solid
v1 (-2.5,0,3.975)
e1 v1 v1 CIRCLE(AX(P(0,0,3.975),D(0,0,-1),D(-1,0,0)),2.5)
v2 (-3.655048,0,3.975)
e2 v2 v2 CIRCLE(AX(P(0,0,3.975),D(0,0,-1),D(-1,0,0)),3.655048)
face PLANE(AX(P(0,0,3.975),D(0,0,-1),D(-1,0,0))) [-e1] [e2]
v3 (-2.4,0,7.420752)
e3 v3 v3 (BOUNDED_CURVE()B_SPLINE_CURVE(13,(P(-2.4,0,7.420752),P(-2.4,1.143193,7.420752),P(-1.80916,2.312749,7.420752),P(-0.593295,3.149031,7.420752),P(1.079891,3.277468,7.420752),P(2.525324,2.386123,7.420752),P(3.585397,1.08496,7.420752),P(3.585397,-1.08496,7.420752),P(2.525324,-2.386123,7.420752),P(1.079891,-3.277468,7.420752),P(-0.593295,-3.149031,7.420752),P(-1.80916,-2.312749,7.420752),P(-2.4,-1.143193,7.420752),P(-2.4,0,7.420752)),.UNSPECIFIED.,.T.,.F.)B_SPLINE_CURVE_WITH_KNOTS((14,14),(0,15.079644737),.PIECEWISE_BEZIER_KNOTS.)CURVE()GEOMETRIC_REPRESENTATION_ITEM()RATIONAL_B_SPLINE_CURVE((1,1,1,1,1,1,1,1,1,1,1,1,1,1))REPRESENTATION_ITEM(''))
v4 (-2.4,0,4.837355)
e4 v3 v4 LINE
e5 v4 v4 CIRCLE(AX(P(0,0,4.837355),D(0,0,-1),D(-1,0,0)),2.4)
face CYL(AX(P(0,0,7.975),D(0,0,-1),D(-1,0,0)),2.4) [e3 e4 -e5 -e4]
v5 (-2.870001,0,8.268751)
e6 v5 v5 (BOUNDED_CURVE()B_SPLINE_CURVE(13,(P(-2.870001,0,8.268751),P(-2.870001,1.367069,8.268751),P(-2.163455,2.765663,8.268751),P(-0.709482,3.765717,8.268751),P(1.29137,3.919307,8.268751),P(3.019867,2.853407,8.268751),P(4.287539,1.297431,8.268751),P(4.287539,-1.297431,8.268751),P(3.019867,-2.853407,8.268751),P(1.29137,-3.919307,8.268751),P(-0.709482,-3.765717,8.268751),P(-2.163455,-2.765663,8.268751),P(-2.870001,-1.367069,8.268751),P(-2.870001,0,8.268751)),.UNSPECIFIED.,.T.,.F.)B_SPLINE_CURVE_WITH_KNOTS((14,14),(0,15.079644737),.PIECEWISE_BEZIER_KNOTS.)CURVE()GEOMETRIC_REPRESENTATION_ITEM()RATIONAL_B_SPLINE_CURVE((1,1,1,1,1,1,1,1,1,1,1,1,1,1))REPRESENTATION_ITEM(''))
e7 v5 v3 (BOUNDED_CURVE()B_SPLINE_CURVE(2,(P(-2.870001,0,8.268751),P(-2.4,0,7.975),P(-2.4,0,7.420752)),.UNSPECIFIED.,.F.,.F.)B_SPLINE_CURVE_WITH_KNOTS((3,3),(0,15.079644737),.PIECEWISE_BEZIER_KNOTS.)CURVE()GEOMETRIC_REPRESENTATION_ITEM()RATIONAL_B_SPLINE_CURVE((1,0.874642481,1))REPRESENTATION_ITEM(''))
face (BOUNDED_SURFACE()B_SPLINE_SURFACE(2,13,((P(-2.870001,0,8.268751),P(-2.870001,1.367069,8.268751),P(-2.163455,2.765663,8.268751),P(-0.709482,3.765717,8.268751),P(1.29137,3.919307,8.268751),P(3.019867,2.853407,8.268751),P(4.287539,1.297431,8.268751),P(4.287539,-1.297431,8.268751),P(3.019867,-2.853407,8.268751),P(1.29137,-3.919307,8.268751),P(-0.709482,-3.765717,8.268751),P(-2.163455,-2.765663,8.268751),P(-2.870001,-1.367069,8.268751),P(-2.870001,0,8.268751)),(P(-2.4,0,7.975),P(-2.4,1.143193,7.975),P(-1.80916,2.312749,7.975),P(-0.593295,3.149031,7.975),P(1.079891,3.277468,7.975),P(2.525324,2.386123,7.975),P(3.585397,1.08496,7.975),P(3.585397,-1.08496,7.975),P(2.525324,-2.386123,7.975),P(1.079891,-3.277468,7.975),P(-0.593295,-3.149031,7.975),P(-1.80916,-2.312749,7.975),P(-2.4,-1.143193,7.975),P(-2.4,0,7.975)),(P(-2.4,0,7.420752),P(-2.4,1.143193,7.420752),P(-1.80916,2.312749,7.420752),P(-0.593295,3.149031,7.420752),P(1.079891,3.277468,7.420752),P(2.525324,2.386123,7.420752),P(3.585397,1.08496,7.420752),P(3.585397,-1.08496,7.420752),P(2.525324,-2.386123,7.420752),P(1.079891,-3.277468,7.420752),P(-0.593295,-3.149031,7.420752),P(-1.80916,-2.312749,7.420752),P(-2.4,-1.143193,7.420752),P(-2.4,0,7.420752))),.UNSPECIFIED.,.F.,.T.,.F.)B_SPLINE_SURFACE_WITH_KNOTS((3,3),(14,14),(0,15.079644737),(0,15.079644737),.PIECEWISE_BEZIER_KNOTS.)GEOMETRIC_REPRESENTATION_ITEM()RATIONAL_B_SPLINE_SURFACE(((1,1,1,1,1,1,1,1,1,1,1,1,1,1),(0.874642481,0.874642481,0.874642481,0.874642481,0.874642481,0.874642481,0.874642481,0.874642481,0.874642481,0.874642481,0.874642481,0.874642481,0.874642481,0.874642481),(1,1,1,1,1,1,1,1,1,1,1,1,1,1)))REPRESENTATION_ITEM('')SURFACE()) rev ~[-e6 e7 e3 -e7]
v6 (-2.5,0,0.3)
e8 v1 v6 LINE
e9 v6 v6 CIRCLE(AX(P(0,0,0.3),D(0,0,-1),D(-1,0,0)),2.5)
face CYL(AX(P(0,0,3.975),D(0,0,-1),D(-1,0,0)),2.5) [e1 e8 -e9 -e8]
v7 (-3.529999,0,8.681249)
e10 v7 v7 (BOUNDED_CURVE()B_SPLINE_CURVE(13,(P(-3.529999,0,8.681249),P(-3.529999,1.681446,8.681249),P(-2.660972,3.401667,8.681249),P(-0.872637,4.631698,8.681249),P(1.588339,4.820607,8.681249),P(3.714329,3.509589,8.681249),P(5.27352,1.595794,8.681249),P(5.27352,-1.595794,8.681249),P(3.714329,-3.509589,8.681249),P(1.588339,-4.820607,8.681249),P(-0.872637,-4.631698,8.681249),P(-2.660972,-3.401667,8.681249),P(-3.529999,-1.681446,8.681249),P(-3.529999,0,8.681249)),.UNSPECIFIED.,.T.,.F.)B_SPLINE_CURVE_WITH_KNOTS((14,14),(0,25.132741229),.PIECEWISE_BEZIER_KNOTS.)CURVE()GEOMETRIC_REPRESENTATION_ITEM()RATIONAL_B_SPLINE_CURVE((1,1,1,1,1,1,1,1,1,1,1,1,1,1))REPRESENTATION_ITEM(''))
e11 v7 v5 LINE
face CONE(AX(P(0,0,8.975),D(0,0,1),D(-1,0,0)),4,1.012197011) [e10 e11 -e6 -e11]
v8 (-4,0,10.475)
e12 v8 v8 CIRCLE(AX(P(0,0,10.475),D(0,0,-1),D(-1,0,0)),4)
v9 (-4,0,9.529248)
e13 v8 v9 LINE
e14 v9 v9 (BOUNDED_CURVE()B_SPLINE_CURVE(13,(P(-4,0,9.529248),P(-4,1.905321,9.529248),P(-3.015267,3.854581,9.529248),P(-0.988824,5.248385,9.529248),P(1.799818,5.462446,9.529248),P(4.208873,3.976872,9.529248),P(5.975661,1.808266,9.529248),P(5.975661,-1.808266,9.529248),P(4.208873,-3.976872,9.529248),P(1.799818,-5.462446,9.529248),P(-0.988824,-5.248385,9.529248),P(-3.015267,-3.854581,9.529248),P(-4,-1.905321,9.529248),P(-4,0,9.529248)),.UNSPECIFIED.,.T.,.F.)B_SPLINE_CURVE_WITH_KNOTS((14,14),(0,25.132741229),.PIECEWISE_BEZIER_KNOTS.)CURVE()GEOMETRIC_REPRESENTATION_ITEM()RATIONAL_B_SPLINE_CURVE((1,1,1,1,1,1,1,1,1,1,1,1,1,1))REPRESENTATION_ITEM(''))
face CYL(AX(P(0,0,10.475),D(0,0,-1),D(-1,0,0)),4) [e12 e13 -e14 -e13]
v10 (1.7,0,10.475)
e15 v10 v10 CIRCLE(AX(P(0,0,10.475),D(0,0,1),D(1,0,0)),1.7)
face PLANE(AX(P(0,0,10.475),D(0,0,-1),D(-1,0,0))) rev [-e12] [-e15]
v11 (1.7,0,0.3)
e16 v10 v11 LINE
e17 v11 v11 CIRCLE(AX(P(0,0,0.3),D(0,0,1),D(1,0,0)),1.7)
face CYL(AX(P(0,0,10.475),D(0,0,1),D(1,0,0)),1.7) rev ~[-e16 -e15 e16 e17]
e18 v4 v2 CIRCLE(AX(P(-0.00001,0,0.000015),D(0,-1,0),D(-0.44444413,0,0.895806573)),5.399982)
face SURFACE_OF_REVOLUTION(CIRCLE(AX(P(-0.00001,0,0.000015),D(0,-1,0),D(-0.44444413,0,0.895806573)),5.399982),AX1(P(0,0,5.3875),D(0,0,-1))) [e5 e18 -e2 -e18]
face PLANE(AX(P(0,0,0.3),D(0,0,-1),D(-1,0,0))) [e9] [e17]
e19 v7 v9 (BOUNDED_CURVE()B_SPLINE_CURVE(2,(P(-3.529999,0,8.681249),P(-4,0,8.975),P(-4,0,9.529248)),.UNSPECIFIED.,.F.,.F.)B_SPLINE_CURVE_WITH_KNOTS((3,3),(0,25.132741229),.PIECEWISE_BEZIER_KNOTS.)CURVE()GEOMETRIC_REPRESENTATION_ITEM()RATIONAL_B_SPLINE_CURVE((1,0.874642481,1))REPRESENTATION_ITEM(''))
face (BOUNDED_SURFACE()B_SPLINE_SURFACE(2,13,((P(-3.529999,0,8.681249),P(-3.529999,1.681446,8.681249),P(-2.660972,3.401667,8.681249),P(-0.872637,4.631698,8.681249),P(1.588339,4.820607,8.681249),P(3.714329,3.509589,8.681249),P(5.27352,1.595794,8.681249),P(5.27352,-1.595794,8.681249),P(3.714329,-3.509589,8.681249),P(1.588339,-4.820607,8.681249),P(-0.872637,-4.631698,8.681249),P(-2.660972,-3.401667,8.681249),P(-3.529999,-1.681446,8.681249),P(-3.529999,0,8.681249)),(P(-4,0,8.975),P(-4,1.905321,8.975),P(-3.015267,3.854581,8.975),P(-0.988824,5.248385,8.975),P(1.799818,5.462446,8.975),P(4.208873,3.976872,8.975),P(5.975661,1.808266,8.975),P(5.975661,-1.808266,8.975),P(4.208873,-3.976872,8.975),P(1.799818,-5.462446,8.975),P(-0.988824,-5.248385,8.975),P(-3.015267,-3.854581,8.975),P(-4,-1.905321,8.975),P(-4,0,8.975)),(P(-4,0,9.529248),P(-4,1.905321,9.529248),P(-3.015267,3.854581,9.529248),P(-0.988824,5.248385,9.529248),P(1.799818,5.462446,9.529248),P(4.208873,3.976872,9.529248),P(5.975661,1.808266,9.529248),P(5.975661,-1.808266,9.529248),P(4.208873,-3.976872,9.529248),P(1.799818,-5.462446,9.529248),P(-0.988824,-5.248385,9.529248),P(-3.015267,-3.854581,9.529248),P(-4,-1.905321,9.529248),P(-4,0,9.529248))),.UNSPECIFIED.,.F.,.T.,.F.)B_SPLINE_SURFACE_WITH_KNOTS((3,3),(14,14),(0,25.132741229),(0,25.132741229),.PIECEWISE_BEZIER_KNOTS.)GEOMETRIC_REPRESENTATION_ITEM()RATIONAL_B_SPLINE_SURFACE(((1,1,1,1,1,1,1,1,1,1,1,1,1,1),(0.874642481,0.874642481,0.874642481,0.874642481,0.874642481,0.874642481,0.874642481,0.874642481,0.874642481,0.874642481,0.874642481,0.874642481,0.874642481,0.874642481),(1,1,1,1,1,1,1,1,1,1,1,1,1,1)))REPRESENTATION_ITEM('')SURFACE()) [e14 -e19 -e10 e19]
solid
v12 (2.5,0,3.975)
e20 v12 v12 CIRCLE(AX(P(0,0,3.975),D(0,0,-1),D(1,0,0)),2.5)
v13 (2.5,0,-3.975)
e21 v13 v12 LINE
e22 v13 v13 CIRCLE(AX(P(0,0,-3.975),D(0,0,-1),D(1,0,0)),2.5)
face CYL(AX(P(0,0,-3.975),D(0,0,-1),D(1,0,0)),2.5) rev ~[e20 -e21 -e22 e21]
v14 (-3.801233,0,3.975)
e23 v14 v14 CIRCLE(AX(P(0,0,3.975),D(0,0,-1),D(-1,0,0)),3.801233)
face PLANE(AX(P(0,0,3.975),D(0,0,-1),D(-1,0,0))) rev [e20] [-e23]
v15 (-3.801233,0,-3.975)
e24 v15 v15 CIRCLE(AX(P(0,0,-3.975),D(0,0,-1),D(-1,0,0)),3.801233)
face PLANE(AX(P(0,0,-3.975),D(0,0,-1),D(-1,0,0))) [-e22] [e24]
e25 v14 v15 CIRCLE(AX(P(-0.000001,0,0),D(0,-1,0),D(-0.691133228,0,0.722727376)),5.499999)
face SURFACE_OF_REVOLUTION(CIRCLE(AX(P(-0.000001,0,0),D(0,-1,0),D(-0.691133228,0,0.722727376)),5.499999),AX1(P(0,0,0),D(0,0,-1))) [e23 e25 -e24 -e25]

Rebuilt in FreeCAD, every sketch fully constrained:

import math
import FreeCAD as App
import Part
import Sketcher


def edges_at(feature, points):
    """Names of the edges that pass closest to the given points."""
    edges = feature.Shape.Edges
    near = lambda p: min(range(len(edges)), key=lambda i: edges[i].distToShape(Part.Vertex(*p))[0])
    return sorted({f"Edge{near(p) + 1}" for p in points})

doc = App.newDocument("Part")
body = doc.addObject("PartDesign::Body", "Body")

sketch1 = body.newObject("Sketcher::SketchObject", "Sketch")
sketch1.AttachmentSupport = (doc.getObject("XZ_Plane"), [""])
sketch1.MapMode = "FlatFace"
sketch1.addGeometry([
    Part.LineSegment(App.Vector(0, 4, 0), App.Vector(-3.8, 4, 0)),
    Part.ArcOfCircle(Part.Circle(App.Vector(0, 0, 0), App.Vector(0, 0, 1), 5.5), math.radians(134), math.radians(226)),
    Part.LineSegment(App.Vector(-3.8, -4, 0), App.Vector(0, -4, 0)),
    Part.LineSegment(App.Vector(0, -4, 0), App.Vector(0, 4, 0)),
], False)
sketch1.addConstraint([
    Sketcher.Constraint("Coincident", 0, 2, 1, 1),
    Sketcher.Constraint("Coincident", 1, 2, 2, 1),
    Sketcher.Constraint("Coincident", 2, 2, 3, 1),
    Sketcher.Constraint("Coincident", 3, 2, 0, 1),
    Sketcher.Constraint("Horizontal", 0),
    Sketcher.Constraint("Horizontal", 2),
    Sketcher.Constraint("Vertical", 3),
    Sketcher.Constraint("Coincident", 1, 3, -1, 1),
    Sketcher.Constraint("Symmetric", 2, 2, 3, 2, -1, 1),
    Sketcher.Constraint("Radius", 1, 5.499999),
    Sketcher.Constraint("DistanceY", 3, 1, 3, 2, 7.95),
])
revolution = body.newObject("PartDesign::Revolution", "Revolution")
revolution.Profile = sketch1
revolution.ReferenceAxis = (sketch1, ["V_Axis"])
revolution.Angle = 360

sketch2 = body.newObject("Sketcher::SketchObject", "Sketch001")
sketch2.AttachmentSupport = (doc.getObject("XY_Plane"), [""])
sketch2.MapMode = "FlatFace"
sketch2.AttachmentOffset = App.Placement(App.Vector(0, 0, -3.975), App.Rotation())
sketch2.addGeometry(Part.Circle(App.Vector(0, 0, 0), App.Vector(0, 0, 1), 2.5), False)
sketch2.addConstraint([
    Sketcher.Constraint("Coincident", 0, 3, -1, 1),
    Sketcher.Constraint("Diameter", 0, 5.0),
])
pocket1 = body.newObject("PartDesign::Pocket", "Pocket")
pocket1.Profile = sketch2
pocket1.Type = "ThroughAll"
pocket1.Reversed = True
body2 = doc.addObject("PartDesign::Body", "Body001")

sketch3 = body2.newObject("Sketcher::SketchObject", "Sketch002")
sketch3.AttachmentSupport = (doc.getObject("XZ_Plane001"), [""])
sketch3.MapMode = "FlatFace"
sketch3.addGeometry([
    Part.LineSegment(App.Vector(0, 0.3, 0), App.Vector(0, 10.5, 0)),
    Part.LineSegment(App.Vector(0, 10.5, 0), App.Vector(-4, 10.5, 0)),
    Part.LineSegment(App.Vector(-4, 10.5, 0), App.Vector(-4, 9, 0)),
    Part.LineSegment(App.Vector(-4, 9, 0), App.Vector(-2.4, 8, 0)),
    Part.LineSegment(App.Vector(-2.4, 8, 0), App.Vector(-2.4, 4.8, 0)),
    Part.ArcOfCircle(Part.Circle(App.Vector(0, 0, 0), App.Vector(0, 0, 1), 5.4), math.radians(116.39), math.radians(132.6)),
    Part.LineSegment(App.Vector(-3.7, 4, 0), App.Vector(-2.5, 4, 0)),
    Part.LineSegment(App.Vector(-2.5, 4, 0), App.Vector(-2.5, 0.3, 0)),
    Part.LineSegment(App.Vector(-2.5, 0.3, 0), App.Vector(0, 0.3, 0)),
], False)
sketch3.addConstraint([
    Sketcher.Constraint("Coincident", 0, 2, 1, 1),
    Sketcher.Constraint("Coincident", 1, 2, 2, 1),
    Sketcher.Constraint("Coincident", 2, 2, 3, 1),
    Sketcher.Constraint("Coincident", 3, 2, 4, 1),
    Sketcher.Constraint("Coincident", 4, 2, 5, 1),
    Sketcher.Constraint("Coincident", 5, 2, 6, 1),
    Sketcher.Constraint("Coincident", 6, 2, 7, 1),
    Sketcher.Constraint("Coincident", 7, 2, 8, 1),
    Sketcher.Constraint("Coincident", 8, 2, 0, 1),
    Sketcher.Constraint("Vertical", 0),
    Sketcher.Constraint("Horizontal", 1),
    Sketcher.Constraint("Vertical", 2),
    Sketcher.Constraint("Vertical", 4),
    Sketcher.Constraint("Horizontal", 6),
    Sketcher.Constraint("Vertical", 7),
    Sketcher.Constraint("Horizontal", 8),
    Sketcher.Constraint("PointOnObject", 0, 2, -2),
    Sketcher.Constraint("DistanceX", 1, 2, 1, 1, 4.0),
    Sketcher.Constraint("DistanceX", 8, 1, 8, 2, 2.5),
    Sketcher.Constraint("DistanceY", 2, 2, 2, 1, 1.5),
    Sketcher.Constraint("DistanceY", 3, 2, 2, 2, 1.0),
    Sketcher.Constraint("DistanceY", 5, 2, 3, 2, 4.0),
    Sketcher.Constraint("DistanceX", 3, 2, -1, 1, 2.4),
    Sketcher.Constraint("DistanceY", -1, 1, 7, 2, 0.3),
    Sketcher.Constraint("DistanceY", 0, 1, 0, 2, 10.175),
    Sketcher.Constraint("Radius", 5, 5.399982),
    Sketcher.Constraint("DistanceX", 6, 1, 6, 2, 1.155048),
    Sketcher.Constraint("DistanceY", 4, 2, 4, 1, 3.137645),
])
revolution2 = body2.newObject("PartDesign::Revolution", "Revolution001")
revolution2.Profile = sketch3
revolution2.ReferenceAxis = (sketch3, ["V_Axis"])
revolution2.Angle = 360

sketch4 = body2.newObject("Sketcher::SketchObject", "Sketch003")
sketch4.AttachmentSupport = (doc.getObject("XY_Plane001"), [""])
sketch4.MapMode = "FlatFace"
sketch4.AttachmentOffset = App.Placement(App.Vector(0, 0, 10.475), App.Rotation())
sketch4.addGeometry(Part.Circle(App.Vector(0, 0, 0), App.Vector(0, 0, 1), 1.7), False)
sketch4.addConstraint([
    Sketcher.Constraint("Coincident", 0, 3, -1, 1),
    Sketcher.Constraint("Diameter", 0, 3.4),
])
pocket2 = body2.newObject("PartDesign::Pocket", "Pocket001")
pocket2.Profile = sketch4
pocket2.Type = "ThroughAll"
doc.recompute()

fillet = body2.newObject("PartDesign::Fillet", "Fillet")
fillet.Base = (pocket2, edges_at(pocket2, [(2.4, 0, 7.975)]))
fillet.Radius = 1
doc.recompute()

fillet2 = body2.newObject("PartDesign::Fillet", "Fillet001")
fillet2.Base = (fillet, edges_at(fillet, [(4, 0, 8.975)]))
fillet2.Radius = 1

doc.recompute()
